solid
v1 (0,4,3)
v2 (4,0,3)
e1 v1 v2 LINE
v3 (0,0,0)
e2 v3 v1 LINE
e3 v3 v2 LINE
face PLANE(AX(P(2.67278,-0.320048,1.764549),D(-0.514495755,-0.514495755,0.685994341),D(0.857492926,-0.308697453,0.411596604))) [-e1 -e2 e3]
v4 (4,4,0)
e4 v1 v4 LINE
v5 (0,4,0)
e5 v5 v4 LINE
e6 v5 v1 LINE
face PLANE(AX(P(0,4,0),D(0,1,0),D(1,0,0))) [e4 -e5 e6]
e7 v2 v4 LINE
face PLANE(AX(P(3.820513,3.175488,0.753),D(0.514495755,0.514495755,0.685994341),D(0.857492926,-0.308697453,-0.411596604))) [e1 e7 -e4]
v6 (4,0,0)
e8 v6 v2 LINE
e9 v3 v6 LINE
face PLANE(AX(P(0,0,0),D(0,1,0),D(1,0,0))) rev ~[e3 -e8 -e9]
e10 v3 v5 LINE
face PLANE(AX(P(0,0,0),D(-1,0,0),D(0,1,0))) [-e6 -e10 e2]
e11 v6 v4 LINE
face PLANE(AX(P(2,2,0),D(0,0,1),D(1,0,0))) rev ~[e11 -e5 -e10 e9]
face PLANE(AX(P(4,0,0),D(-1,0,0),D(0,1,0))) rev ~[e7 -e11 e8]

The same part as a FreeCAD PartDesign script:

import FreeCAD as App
import Part
import Sketcher

V = App.Vector


def add_polygon(sketch, points):
    """Adds a closed chain of lines whose ends are joined by coincident constraints."""
    first, n = sketch.GeometryCount, len(points)
    for a, b in zip(points, points[1:] + points[:1]):
        sketch.addGeometry(Part.LineSegment(App.Vector(*a, 0), App.Vector(*b, 0)), False)
    for i in range(n):
        sketch.addConstraint(Sketcher.Constraint("Coincident", first + i, 2, first + (i + 1) % n, 1))

doc = App.newDocument("Part")
params = doc.addObject("Spreadsheet::Sheet", "Params")
for row, (alias, value) in enumerate([
    ("sketch1_width", "4 mm"),
    ("pad1_length", "3 mm"),
    ("pocket1_length", "25 mm"),
    ("pocket2_length", "25 mm"),
], start=1):
    params.set(f"A{row}", alias)
    params.set(f"B{row}", "=" + value)
    params.setAlias(f"B{row}", alias)

body = doc.addObject("PartDesign::Body", "Body")

# Sketch on XY plane
sketch1 = body.newObject("Sketcher::SketchObject", "Sketch")
sketch1.AttachmentSupport = (doc.getObject("XY_Plane"), [""])
sketch1.MapMode = "FlatFace"
add_polygon(sketch1, [(0, 4), (0, 0), (4, 0), (4, 4)])  # lines 0-3
sketch1.addConstraint(Sketcher.Constraint("Vertical", 0))
sketch1.addConstraint(Sketcher.Constraint("Horizontal", 1))
sketch1.addConstraint(Sketcher.Constraint("Vertical", 2))
sketch1.addConstraint(Sketcher.Constraint("Horizontal", 3))
sketch1.addConstraint(Sketcher.Constraint("Coincident", 0, 2, -1, 1))
sketch1.addConstraint(Sketcher.Constraint("Equal", 3, 0))
sketch1.addConstraint(Sketcher.Constraint("DistanceX", 1, 1, 1, 2, 4.0))
sketch1.setExpression("Constraints[10]", "Params.sketch1_width")
pad1 = body.newObject("PartDesign::Pad", "Pad")
pad1.Profile = sketch1
pad1.setExpression("Length", "Params.pad1_length")

# Sketch on an angled plane
sketch2 = body.newObject("Sketcher::SketchObject", "Sketch001")
sketch2.Placement = App.Placement(V(0, 0, 0), App.Rotation(V(0.857492926, -0.308697453, 0.411596604), V(0, 0.8, 0.6), V(-0.514495755, -0.514495755, 0.685994341), "ZXY"))
add_polygon(sketch2, [(-4.050015, 6.138911), (-4.050015, -4.533528), (10.283956, -4.533528), (10.283956, 6.138911)])  # lines 0-3
sketch2.addConstraint(Sketcher.Constraint("Vertical", 0))
sketch2.addConstraint(Sketcher.Constraint("Horizontal", 1))
sketch2.addConstraint(Sketcher.Constraint("Vertical", 2))
sketch2.addConstraint(Sketcher.Constraint("Horizontal", 3))
sketch2.addConstraint(Sketcher.Constraint("DistanceX", 1, 1, 1, 2, 14.333971))
sketch2.addConstraint(Sketcher.Constraint("DistanceY", 0, 2, 0, 1, 10.67244))
sketch2.addConstraint(Sketcher.Constraint("DistanceY", 0, 2, -1, 1, 4.533528))
sketch2.addConstraint(Sketcher.Constraint("DistanceX", 0, 2, -1, 1, 4.050015))
pocket1 = body.newObject("PartDesign::Pocket", "Pocket")
pocket1.Profile = sketch2
pocket1.setExpression("Length", "Params.pocket1_length")
pocket1.Reversed = True

# Sketch on an angled plane
sketch3 = body.newObject("Sketcher::SketchObject", "Sketch002")
sketch3.Placement = App.Placement(V(2.117647, 2.117647, 2.823529), App.Rotation(V(0.857492926, -0.308697453, -0.411596604), V(0, 0.8, -0.6), V(0.514495755, 0.514495755, 0.685994341), "ZXY"))
add_polygon(sketch3, [(-6.6358, 13.16394), (-6.6358, -8.98676), (10.607531, -8.98676), (10.607531, 13.16394)])  # lines 0-3
sketch3.addConstraint(Sketcher.Constraint("Vertical", 0))
sketch3.addConstraint(Sketcher.Constraint("Horizontal", 1))
sketch3.addConstraint(Sketcher.Constraint("Vertical", 2))
sketch3.addConstraint(Sketcher.Constraint("Horizontal", 3))
sketch3.addConstraint(Sketcher.Constraint("DistanceY", 0, 2, 0, 1, 22.1507))
sketch3.addConstraint(Sketcher.Constraint("DistanceX", 1, 1, 1, 2, 17.243332))
sketch3.addConstraint(Sketcher.Constraint("DistanceX", 0, 2, -1, 1, 6.6358))
sketch3.addConstraint(Sketcher.Constraint("DistanceY", 0, 2, -1, 1, 8.98676))
pocket2 = body.newObject("PartDesign::Pocket", "Pocket001")
pocket2.Profile = sketch3
pocket2.setExpression("Length", "Params.pocket2_length")
pocket2.Reversed = True

doc.recompute()
